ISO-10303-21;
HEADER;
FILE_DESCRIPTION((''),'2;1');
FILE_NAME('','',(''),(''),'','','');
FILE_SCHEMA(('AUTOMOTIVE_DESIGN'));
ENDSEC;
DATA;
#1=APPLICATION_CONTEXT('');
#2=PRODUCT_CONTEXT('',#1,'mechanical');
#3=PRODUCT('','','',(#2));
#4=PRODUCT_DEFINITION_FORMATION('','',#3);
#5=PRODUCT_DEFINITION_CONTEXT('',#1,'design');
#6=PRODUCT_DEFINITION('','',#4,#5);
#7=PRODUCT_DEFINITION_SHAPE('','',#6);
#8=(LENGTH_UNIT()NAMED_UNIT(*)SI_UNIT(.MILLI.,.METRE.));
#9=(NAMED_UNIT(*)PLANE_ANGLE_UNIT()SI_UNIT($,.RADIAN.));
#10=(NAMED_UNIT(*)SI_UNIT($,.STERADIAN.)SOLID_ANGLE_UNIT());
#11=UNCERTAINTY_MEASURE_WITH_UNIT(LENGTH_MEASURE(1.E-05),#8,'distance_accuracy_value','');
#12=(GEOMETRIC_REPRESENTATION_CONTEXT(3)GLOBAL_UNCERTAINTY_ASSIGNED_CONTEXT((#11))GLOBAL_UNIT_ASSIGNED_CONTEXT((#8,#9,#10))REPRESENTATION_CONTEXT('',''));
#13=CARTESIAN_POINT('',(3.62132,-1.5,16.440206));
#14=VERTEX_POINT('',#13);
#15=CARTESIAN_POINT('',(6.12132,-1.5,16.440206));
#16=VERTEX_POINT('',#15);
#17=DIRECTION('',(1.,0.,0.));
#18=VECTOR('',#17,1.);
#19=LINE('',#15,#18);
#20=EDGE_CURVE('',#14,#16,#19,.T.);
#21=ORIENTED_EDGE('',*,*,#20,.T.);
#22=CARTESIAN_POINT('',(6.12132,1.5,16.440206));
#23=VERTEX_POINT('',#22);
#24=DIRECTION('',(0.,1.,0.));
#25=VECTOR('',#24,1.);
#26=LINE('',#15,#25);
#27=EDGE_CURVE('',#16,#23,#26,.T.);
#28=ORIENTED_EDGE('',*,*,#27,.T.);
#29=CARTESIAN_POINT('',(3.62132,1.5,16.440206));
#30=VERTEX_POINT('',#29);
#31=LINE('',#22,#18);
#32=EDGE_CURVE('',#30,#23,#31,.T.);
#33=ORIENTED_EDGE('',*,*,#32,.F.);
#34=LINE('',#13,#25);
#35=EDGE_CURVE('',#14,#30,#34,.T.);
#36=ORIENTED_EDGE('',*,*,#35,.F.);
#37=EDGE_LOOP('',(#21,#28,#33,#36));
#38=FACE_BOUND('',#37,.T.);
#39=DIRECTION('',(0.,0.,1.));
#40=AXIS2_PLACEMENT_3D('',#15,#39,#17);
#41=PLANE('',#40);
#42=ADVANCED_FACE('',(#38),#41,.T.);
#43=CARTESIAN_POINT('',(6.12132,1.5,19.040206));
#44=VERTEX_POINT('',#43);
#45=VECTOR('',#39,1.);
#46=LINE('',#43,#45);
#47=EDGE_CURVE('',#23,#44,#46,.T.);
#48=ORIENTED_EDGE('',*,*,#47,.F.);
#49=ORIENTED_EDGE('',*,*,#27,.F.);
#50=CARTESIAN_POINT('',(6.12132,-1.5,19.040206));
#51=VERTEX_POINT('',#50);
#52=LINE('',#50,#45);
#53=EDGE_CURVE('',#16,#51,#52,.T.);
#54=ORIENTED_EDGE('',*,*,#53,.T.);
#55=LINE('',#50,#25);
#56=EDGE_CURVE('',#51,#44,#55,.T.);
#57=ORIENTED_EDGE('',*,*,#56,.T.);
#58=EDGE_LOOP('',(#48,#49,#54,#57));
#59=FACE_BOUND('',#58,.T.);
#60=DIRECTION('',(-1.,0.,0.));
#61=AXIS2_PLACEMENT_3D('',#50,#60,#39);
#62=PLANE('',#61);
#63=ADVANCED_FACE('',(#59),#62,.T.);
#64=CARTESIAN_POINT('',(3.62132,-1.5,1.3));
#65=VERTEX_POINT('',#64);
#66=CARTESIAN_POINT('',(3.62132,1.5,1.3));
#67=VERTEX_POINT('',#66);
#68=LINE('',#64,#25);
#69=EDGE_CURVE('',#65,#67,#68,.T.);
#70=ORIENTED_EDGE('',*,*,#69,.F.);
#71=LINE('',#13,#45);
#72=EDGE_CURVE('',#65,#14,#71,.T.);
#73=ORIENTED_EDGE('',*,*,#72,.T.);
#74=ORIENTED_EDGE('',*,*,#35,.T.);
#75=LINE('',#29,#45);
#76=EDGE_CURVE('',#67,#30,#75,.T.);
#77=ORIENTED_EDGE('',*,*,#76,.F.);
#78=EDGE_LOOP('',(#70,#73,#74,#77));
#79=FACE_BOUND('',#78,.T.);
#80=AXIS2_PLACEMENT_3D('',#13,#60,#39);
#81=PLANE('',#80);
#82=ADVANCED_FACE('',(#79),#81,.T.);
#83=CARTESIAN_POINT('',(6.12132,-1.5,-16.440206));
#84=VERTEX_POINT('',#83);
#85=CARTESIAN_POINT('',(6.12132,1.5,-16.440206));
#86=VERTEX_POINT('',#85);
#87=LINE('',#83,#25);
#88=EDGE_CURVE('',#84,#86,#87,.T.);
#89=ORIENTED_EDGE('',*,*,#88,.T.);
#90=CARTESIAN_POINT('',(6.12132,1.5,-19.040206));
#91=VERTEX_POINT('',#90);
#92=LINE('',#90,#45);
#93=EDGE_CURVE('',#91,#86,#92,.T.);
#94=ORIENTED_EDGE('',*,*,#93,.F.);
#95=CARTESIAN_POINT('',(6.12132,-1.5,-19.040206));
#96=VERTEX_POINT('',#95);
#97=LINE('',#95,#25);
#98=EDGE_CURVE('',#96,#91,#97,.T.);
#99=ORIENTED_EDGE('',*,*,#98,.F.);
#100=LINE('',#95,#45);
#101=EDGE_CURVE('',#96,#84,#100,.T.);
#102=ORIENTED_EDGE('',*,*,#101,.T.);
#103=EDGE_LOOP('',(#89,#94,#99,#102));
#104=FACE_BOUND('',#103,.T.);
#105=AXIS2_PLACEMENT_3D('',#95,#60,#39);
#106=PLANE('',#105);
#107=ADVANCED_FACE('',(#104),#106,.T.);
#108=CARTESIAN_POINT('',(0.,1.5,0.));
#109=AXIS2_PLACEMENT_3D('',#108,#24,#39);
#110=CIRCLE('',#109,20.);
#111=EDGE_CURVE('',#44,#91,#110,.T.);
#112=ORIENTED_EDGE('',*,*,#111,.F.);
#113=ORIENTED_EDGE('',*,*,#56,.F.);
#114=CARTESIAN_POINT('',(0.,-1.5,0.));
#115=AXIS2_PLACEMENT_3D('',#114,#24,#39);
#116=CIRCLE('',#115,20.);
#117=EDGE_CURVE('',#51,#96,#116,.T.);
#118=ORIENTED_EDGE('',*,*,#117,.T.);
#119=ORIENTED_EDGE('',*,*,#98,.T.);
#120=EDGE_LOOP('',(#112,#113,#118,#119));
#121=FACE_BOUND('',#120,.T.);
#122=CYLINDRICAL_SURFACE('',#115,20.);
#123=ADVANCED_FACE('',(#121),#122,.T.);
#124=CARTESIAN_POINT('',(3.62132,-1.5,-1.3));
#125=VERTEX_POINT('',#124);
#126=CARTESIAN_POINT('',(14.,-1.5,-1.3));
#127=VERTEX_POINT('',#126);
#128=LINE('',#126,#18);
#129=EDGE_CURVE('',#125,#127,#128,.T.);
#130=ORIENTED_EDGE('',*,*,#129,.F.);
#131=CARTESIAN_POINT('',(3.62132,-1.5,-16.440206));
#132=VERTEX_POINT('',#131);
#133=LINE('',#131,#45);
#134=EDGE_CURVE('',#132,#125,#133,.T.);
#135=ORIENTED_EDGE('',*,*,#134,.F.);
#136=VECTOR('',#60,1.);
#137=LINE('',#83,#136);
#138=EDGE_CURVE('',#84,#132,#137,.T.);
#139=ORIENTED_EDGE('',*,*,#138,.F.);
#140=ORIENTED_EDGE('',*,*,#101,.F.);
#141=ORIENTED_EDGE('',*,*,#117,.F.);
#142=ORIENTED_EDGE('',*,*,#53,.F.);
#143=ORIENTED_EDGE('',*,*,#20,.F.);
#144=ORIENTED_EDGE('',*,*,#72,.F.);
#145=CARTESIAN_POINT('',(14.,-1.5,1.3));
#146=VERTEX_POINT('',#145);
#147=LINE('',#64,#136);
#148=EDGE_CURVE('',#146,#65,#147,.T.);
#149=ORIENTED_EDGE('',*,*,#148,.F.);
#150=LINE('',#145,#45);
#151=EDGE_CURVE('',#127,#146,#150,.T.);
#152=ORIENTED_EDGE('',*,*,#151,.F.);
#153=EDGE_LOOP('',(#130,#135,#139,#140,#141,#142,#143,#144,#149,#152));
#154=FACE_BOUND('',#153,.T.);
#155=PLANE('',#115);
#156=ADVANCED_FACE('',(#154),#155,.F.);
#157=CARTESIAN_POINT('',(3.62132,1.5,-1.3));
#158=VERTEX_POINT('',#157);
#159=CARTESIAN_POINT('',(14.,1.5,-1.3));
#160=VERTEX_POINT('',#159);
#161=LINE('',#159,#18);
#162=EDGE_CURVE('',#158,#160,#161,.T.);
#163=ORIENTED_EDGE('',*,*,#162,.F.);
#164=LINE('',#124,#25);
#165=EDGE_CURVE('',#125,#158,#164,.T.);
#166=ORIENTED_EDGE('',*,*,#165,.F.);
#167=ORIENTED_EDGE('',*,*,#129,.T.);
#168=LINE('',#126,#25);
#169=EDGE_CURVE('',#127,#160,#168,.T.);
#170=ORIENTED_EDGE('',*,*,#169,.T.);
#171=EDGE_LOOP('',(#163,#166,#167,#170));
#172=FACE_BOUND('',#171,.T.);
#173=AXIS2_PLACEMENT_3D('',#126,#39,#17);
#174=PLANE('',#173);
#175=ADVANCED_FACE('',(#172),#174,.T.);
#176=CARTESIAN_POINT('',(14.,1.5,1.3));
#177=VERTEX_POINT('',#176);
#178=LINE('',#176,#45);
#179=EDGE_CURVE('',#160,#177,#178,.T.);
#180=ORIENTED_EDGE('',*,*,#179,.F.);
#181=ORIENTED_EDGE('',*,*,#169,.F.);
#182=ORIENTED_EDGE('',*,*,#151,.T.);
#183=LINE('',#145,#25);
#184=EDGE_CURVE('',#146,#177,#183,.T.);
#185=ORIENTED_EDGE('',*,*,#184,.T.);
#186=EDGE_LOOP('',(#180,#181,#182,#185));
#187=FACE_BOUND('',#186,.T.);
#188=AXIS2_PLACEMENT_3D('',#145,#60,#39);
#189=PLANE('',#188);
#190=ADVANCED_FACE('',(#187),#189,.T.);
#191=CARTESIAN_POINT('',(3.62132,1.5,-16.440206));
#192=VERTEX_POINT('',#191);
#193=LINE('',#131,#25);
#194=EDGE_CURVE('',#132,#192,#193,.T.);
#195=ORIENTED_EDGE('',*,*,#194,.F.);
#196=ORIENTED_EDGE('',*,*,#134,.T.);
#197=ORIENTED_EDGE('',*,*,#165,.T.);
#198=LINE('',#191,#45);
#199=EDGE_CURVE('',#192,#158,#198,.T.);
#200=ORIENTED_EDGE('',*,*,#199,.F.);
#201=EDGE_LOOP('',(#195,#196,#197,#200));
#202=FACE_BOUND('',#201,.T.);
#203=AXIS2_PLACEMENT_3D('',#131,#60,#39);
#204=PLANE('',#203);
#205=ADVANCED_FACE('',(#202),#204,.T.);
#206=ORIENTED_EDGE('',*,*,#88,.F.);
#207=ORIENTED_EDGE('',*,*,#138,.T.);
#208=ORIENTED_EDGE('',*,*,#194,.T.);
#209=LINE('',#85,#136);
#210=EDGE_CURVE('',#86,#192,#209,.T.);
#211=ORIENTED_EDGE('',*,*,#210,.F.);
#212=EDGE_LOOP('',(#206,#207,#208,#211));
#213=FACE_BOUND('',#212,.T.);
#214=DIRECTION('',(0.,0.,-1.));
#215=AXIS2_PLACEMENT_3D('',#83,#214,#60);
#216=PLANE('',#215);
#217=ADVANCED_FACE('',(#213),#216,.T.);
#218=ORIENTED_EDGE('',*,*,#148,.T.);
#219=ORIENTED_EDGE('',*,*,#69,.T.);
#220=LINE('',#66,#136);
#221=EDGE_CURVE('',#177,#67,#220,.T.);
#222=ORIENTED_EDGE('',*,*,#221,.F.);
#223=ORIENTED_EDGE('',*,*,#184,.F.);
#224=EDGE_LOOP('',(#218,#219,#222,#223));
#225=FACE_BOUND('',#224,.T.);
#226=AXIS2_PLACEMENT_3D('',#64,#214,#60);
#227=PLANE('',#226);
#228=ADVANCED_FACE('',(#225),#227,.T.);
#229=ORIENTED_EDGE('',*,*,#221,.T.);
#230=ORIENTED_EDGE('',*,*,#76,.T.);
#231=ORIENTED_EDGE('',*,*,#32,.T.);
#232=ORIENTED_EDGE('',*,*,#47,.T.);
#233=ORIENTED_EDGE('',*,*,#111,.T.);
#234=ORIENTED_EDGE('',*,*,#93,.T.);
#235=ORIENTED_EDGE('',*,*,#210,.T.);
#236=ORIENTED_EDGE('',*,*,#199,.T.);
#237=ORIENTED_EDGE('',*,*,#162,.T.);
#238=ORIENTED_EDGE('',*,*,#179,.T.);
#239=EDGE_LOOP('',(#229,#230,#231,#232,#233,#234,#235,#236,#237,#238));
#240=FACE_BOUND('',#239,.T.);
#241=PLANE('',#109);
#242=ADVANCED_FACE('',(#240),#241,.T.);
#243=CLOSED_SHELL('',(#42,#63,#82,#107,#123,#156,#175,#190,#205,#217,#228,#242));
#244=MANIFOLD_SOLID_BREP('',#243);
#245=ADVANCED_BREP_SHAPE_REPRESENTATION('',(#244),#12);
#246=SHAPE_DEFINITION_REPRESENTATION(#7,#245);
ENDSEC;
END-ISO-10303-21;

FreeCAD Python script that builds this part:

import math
import FreeCAD as App
import Part
import Sketcher

V = App.Vector

doc = App.newDocument("Part")
body = doc.addObject("PartDesign::Body", "Body")

# Sketch on XZ plane
sketch1 = doc.addObject("Sketcher::SketchObject", "Sketch")
body.addObject(sketch1)
sketch1.AttachmentSupport = (doc.XZ_Plane, [""])
sketch1.MapMode = "FlatFace"
sketch1.addGeometry([
    Part.LineSegment(V(14, 1.3, 0), V(3.6, 1.3, 0)),  # 0
    Part.LineSegment(V(3.6, 1.3, 0), V(3.6, 16.4, 0)),  # 1
    Part.LineSegment(V(3.6, 16.4, 0), V(6.1, 16.4, 0)),  # 2
    Part.LineSegment(V(6.1, 16.4, 0), V(6.1, 19, 0)),  # 3
    Part.ArcOfCircle(Part.Circle(V(0, 0, 0), V(0, 0, 1), 20), math.radians(-72), math.radians(72)),  # 4
    Part.LineSegment(V(6.1, -19, 0), V(6.1, -16.4, 0)),  # 5
    Part.LineSegment(V(6.1, -16.4, 0), V(3.6, -16.4, 0)),  # 6
    Part.LineSegment(V(3.6, -16.4, 0), V(3.6, -1.3, 0)),  # 7
    Part.LineSegment(V(3.6, -1.3, 0), V(14, -1.3, 0)),  # 8
    Part.LineSegment(V(14, -1.3, 0), V(14, 1.3, 0)),  # 9
], False)
sketch1.addConstraint([
    Sketcher.Constraint("Coincident", 0, 2, 1, 1),
    Sketcher.Constraint("Coincident", 1, 2, 2, 1),
    Sketcher.Constraint("Coincident", 2, 2, 3, 1),
    Sketcher.Constraint("Coincident", 3, 2, 4, 2),
    Sketcher.Constraint("Coincident", 4, 1, 5, 1),
    Sketcher.Constraint("Coincident", 5, 2, 6, 1),
    Sketcher.Constraint("Coincident", 6, 2, 7, 1),
    Sketcher.Constraint("Coincident", 7, 2, 8, 1),
    Sketcher.Constraint("Coincident", 8, 2, 9, 1),
    Sketcher.Constraint("Coincident", 9, 2, 0, 1),
    Sketcher.Constraint("Horizontal", 0),
    Sketcher.Constraint("Vertical", 1),
    Sketcher.Constraint("Horizontal", 2),
    Sketcher.Constraint("Vertical", 3),
    Sketcher.Constraint("Vertical", 5),
    Sketcher.Constraint("Horizontal", 6),
    Sketcher.Constraint("Vertical", 7),
    Sketcher.Constraint("Horizontal", 8),
    Sketcher.Constraint("Vertical", 9),
    Sketcher.Constraint("Coincident", 4, 3, -1, 1),
    Sketcher.Constraint("Symmetric", 2, 2, 5, 2, -1),
    Sketcher.Constraint("Symmetric", 0, 2, 7, 2, -1),
    Sketcher.Constraint("Equal", 5, 9),
    Sketcher.Constraint("Radius", 4, 20.0),
    Sketcher.Constraint("DistanceX", 2, 1, 2, 2, 2.5),
    Sketcher.Constraint("DistanceY", 3, 1, 3, 2, 2.6),
    Sketcher.Constraint("DistanceX", -1, 1, 8, 2, 14.0),
    Sketcher.Constraint("DistanceX", 0, 2, 0, 1, 10.37868),
])
pad1 = doc.addObject("PartDesign::Pad", "Pad")
body.addObject(pad1)
pad1.Profile = sketch1
pad1.Type = "TwoLengths"
pad1.Length = 1.5
pad1.Length2 = 1.5
pad1.Reversed = True

doc.recompute()
